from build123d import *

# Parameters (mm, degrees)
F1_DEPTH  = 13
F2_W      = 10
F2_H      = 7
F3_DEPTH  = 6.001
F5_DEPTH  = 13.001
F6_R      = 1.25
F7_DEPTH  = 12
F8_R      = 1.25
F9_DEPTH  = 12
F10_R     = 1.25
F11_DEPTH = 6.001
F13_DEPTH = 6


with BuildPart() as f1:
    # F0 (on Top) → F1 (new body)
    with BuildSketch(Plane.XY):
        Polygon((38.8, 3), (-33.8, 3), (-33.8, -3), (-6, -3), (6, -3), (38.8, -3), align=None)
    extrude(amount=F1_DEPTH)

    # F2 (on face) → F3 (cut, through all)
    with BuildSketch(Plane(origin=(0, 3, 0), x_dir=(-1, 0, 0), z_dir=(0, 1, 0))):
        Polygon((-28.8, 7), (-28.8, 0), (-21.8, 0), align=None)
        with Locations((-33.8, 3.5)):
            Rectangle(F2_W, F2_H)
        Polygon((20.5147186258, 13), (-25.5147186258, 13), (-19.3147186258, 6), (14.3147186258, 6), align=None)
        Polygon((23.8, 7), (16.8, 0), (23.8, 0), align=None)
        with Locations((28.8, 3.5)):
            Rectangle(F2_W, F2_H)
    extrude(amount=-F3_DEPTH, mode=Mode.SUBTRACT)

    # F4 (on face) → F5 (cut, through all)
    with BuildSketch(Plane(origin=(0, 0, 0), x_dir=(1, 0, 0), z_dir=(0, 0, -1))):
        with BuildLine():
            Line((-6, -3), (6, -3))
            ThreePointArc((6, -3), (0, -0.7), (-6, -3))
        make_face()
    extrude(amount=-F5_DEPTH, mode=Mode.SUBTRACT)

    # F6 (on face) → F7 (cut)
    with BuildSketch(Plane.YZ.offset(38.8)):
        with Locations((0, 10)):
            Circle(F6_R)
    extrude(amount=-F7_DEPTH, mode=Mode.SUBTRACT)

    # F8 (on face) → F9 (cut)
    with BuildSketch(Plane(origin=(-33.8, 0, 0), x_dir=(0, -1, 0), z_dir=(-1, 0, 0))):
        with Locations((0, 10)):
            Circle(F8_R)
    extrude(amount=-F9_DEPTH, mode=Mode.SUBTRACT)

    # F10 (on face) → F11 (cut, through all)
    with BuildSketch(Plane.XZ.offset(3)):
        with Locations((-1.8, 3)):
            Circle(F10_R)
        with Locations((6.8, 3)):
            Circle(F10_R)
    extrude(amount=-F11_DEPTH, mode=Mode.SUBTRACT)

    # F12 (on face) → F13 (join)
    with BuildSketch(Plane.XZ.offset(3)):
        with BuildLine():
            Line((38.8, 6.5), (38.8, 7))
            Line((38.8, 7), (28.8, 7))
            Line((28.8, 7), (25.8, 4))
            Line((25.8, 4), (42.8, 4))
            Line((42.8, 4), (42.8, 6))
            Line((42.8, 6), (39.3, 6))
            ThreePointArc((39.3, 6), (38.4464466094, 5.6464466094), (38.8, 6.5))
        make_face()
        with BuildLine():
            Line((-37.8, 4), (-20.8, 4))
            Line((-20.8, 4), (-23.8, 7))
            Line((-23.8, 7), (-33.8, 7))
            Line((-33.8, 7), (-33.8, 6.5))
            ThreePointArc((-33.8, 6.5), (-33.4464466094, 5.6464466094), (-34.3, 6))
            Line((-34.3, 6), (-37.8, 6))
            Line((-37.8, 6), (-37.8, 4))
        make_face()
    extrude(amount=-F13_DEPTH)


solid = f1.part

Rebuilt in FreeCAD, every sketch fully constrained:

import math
import FreeCAD as App
import Part
import Sketcher

V = App.Vector
Q = App.Units.Quantity

doc = App.newDocument("Part")
body = doc.addObject("PartDesign::Body", "Body")

# Sketch on XY plane
sketch1 = doc.addObject("Sketcher::SketchObject", "Sketch")
body.addObject(sketch1)
sketch1.AttachmentSupport = (doc.XY_Plane, [""])
sketch1.MapMode = "FlatFace"
sketch1.addGeometry([
    Part.LineSegment(V(39, 3, 0), V(-34, 3, 0)),
    Part.LineSegment(V(-34, 3, 0), V(-34, -3, 0)),
    Part.LineSegment(V(-34, -3, 0), V(39, -3, 0)),
    Part.LineSegment(V(39, -3, 0), V(39, 3, 0)),
], False)
sketch1.addConstraint([
    Sketcher.Constraint("Coincident", 0, 2, 1, 1),
    Sketcher.Constraint("Coincident", 1, 2, 2, 1),
    Sketcher.Constraint("Coincident", 2, 2, 3, 1),
    Sketcher.Constraint("Coincident", 3, 2, 0, 1),
    Sketcher.Constraint("Horizontal", 0),
    Sketcher.Constraint("Vertical", 1),
    Sketcher.Constraint("Horizontal", 2),
    Sketcher.Constraint("Vertical", 3),
    Sketcher.Constraint("DistanceY", 1, 2, 1, 1, Q("6 mm")),
    Sketcher.Constraint("DistanceX", 0, 2, 0, 1, Q("72.6 mm")),
    Sketcher.Constraint("DistanceY", -1, 1, 0, 2, Q("3 mm")),
    Sketcher.Constraint("DistanceX", 0, 2, -1, 1, Q("33.8 mm")),
])
pad1 = doc.addObject("PartDesign::Pad", "Pad")
body.addObject(pad1)
pad1.Profile = sketch1
pad1.Length = 13

# Sketch on XZ plane
sketch2 = doc.addObject("Sketcher::SketchObject", "Sketch001")
body.addObject(sketch2)
sketch2.AttachmentSupport = (doc.XZ_Plane, [""])
sketch2.MapMode = "FlatFace"
sketch2.AttachmentOffset = App.Placement(V(0, 0, -3), App.Rotation())
sketch2.addGeometry([
    Part.LineSegment(V(22, 0, 0), V(29, 7, 0)),  # 0
    Part.LineSegment(V(29, 7, 0), V(39, 7, 0)),  # 1
    Part.LineSegment(V(39, 7, 0), V(39, 0, 0)),  # 2
    Part.LineSegment(V(39, 0, 0), V(22, 0, 0)),  # 3
    Part.LineSegment(V(-21, 13, 0), V(26, 13, 0)),  # 4
    Part.LineSegment(V(26, 13, 0), V(19, 6, 0)),  # 5
    Part.LineSegment(V(19, 6, 0), V(-14, 6, 0)),  # 6
    Part.LineSegment(V(-14, 6, 0), V(-21, 13, 0)),  # 7
    Part.LineSegment(V(-24, 7, 0), V(-17, 0, 0)),  # 8
    Part.LineSegment(V(-17, 0, 0), V(-34, 0, 0)),  # 9
    Part.LineSegment(V(-34, 0, 0), V(-34, 7, 0)),  # 10
    Part.LineSegment(V(-34, 7, 0), V(-24, 7, 0)),  # 11
], False)
sketch2.addConstraint([
    Sketcher.Constraint("Coincident", 0, 2, 1, 1),
    Sketcher.Constraint("Coincident", 1, 2, 2, 1),
    Sketcher.Constraint("Coincident", 2, 2, 3, 1),
    Sketcher.Constraint("Coincident", 3, 2, 0, 1),
    Sketcher.Constraint("Coincident", 4, 2, 5, 1),
    Sketcher.Constraint("Coincident", 5, 2, 6, 1),
    Sketcher.Constraint("Coincident", 6, 2, 7, 1),
    Sketcher.Constraint("Coincident", 7, 2, 4, 1),
    Sketcher.Constraint("Coincident", 8, 2, 9, 1),
    Sketcher.Constraint("Coincident", 9, 2, 10, 1),
    Sketcher.Constraint("Coincident", 10, 2, 11, 1),
    Sketcher.Constraint("Coincident", 11, 2, 8, 1),
    Sketcher.Constraint("Horizontal", 1),
    Sketcher.Constraint("Vertical", 2),
    Sketcher.Constraint("Horizontal", 3),
    Sketcher.Constraint("Horizontal", 4),
    Sketcher.Constraint("Horizontal", 6),
    Sketcher.Constraint("Horizontal", 9),
    Sketcher.Constraint("Vertical", 10),
    Sketcher.Constraint("Horizontal", 11),
    Sketcher.Constraint("PointOnObject", 2, 2, -1),
    Sketcher.Constraint("PointOnObject", 8, 2, -1),
    Sketcher.Constraint("Perpendicular", 0, 8),
    Sketcher.Constraint("Horizontal", 1, 2, 10, 2),
    Sketcher.Constraint("Equal", 3, 9),
    Sketcher.Constraint("Equal", 1, 11),
    Sketcher.Constraint("Equal", 5, 7),
    Sketcher.Constraint("DistanceX", 1, 1, 1, 2, Q("10 mm")),
    Sketcher.Constraint("DistanceX", 3, 2, 3, 1, Q("17 mm")),
    Sketcher.Constraint("DistanceY", -1, 1, 4, 2, Q("13 mm")),
    Sketcher.Constraint("DistanceY", -1, 1, 5, 2, Q("6 mm")),
    Sketcher.Constraint("DistanceX", -1, 1, 0, 2, Q("28.8 mm")),
    Sketcher.Constraint("DistanceX", 8, 2, -1, 1, Q("16.8 mm")),
    Sketcher.Constraint("DistanceX", 5, 2, 4, 2, Q("6.2 mm")),
    Sketcher.Constraint("DistanceX", 4, 1, 4, 2, Q("46.029437 mm")),
    Sketcher.Constraint("DistanceX", -1, 1, 4, 2, Q("25.514719 mm")),
])
pocket1 = doc.addObject("PartDesign::Pocket", "Pocket")
body.addObject(pocket1)
pocket1.Profile = sketch2
pocket1.Type = "ThroughAll"
pocket1.Reversed = True

# Sketch on XY plane
sketch3 = doc.addObject("Sketcher::SketchObject", "Sketch002")
body.addObject(sketch3)
sketch3.AttachmentSupport = (doc.XY_Plane, [""])
sketch3.MapMode = "FlatFace"
sketch3.addGeometry([
    Part.LineSegment(V(-6, 3, 0), V(6, 3, 0)),
    Part.ArcOfCircle(Part.Circle(V(0, 10, 0), V(0, 0, 1), 9), math.radians(-132), math.radians(-48)),
], False)
sketch3.addConstraint([
    Sketcher.Constraint("Coincident", 0, 1, 1, 1),
    Sketcher.Constraint("Coincident", 1, 2, 0, 2),
    Sketcher.Constraint("Horizontal", 0),
    Sketcher.Constraint("PointOnObject", 1, 3, -2),
    Sketcher.Constraint("DistanceX", 0, 1, 0, 2, Q("12 mm")),
    Sketcher.Constraint("DistanceY", -1, 1, 0, 1, Q("3 mm")),
    Sketcher.Constraint("Radius", 1, Q("8.976087 mm")),
])
pocket2 = doc.addObject("PartDesign::Pocket", "Pocket001")
body.addObject(pocket2)
pocket2.Profile = sketch3
pocket2.Type = "ThroughAll"
pocket2.Reversed = True

# Sketch on YZ plane
sketch4 = doc.addObject("Sketcher::SketchObject", "Sketch003")
body.addObject(sketch4)
sketch4.AttachmentSupport = (doc.YZ_Plane, [""])
sketch4.MapMode = "FlatFace"
sketch4.AttachmentOffset = App.Placement(V(0, 0, 38.8), App.Rotation())
sketch4.addGeometry(Part.Circle(V(0, 10, 0), V(0, 0, 1), 1.2), False)
sketch4.addConstraint([
    Sketcher.Constraint("PointOnObject", 0, 3, -2),
    Sketcher.Constraint("Diameter", 0, Q("2.5 mm")),
    Sketcher.Constraint("DistanceY", -1, 1, 0, 3, Q("10 mm")),
])
pocket3 = doc.addObject("PartDesign::Pocket", "Pocket002")
body.addObject(pocket3)
pocket3.Profile = sketch4
pocket3.Length = 12

# Sketch on YZ plane
sketch5 = doc.addObject("Sketcher::SketchObject", "Sketch004")
body.addObject(sketch5)
sketch5.AttachmentSupport = (doc.YZ_Plane, [""])
sketch5.MapMode = "FlatFace"
sketch5.AttachmentOffset = App.Placement(V(0, 0, -33.8), App.Rotation())
sketch5.addGeometry(Part.Circle(V(0, 10, 0), V(0, 0, 1), 1.2), False)
sketch5.addConstraint([
    Sketcher.Constraint("PointOnObject", 0, 3, -2),
    Sketcher.Constraint("Diameter", 0, Q("2.5 mm")),
    Sketcher.Constraint("DistanceY", -1, 1, 0, 3, Q("10 mm")),
])
pocket4 = doc.addObject("PartDesign::Pocket", "Pocket003")
body.addObject(pocket4)
pocket4.Profile = sketch5
pocket4.Length = 12
pocket4.Reversed = True

# Sketch on XZ plane
sketch6 = doc.addObject("Sketcher::SketchObject", "Sketch005")
body.addObject(sketch6)
sketch6.AttachmentSupport = (doc.XZ_Plane, [""])
sketch6.MapMode = "FlatFace"
sketch6.AttachmentOffset = App.Placement(V(0, 0, 3), App.Rotation())
sketch6.addGeometry([
    Part.Circle(V(-1.8, 3, 0), V(0, 0, 1), 1.2),
    Part.Circle(V(6.8, 3, 0), V(0, 0, 1), 1.2),
], False)
sketch6.addConstraint([
    Sketcher.Constraint("Equal", 0, 1),
    Sketcher.Constraint("Horizontal", 0, 3, 1, 3),
    Sketcher.Constraint("Diameter", 0, Q("2.5 mm")),
    Sketcher.Constraint("DistanceY", -1, 1, 0, 3, Q("3 mm")),
    Sketcher.Constraint("DistanceX", 0, 3, -1, 1, Q("1.8 mm")),
    Sketcher.Constraint("DistanceX", -1, 1, 1, 3, Q("6.8 mm")),
])
pocket5 = doc.addObject("PartDesign::Pocket", "Pocket004")
body.addObject(pocket5)
pocket5.Profile = sketch6
pocket5.Type = "ThroughAll"

# Sketch on XZ plane
sketch7 = doc.addObject("Sketcher::SketchObject", "Sketch006")
body.addObject(sketch7)
sketch7.AttachmentSupport = (doc.XZ_Plane, [""])
sketch7.MapMode = "FlatFace"
sketch7.AttachmentOffset = App.Placement(V(0, 0, 3), App.Rotation())
sketch7.addGeometry([
    Part.LineSegment(V(38.8, 6.5, 0), V(38.8, 7, 0)),  # 0
    Part.LineSegment(V(38.8, 7, 0), V(28.8, 7, 0)),  # 1
    Part.LineSegment(V(28.8, 7, 0), V(25.8, 4, 0)),  # 2
    Part.LineSegment(V(25.8, 4, 0), V(42.8, 4, 0)),  # 3
    Part.LineSegment(V(42.8, 4, 0), V(42.8, 6, 0)),  # 4
    Part.LineSegment(V(42.8, 6, 0), V(39.3, 6, 0)),  # 5
    Part.ArcOfCircle(Part.Circle(V(38.8, 6, 0), V(0, 0, 1), 0.5), math.radians(90), math.radians(360)),  # 6
    Part.LineSegment(V(-37.8, 4, 0), V(-20.8, 4, 0)),  # 7
    Part.LineSegment(V(-20.8, 4, 0), V(-23.8, 7, 0)),  # 8
    Part.LineSegment(V(-23.8, 7, 0), V(-33.8, 7, 0)),  # 9
    Part.LineSegment(V(-33.8, 7, 0), V(-33.8, 6.5, 0)),  # 10
    Part.ArcOfCircle(Part.Circle(V(-33.8, 6, 0), V(0, 0, 1), 0.5), math.radians(180), math.radians(450)),  # 11
    Part.LineSegment(V(-34.3, 6, 0), V(-37.8, 6, 0)),  # 12
    Part.LineSegment(V(-37.8, 6, 0), V(-37.8, 4, 0)),  # 13
], False)
sketch7.addConstraint([
    Sketcher.Constraint("Coincident", 0, 2, 1, 1),
    Sketcher.Constraint("Coincident", 1, 2, 2, 1),
    Sketcher.Constraint("Coincident", 2, 2, 3, 1),
    Sketcher.Constraint("Coincident", 3, 2, 4, 1),
    Sketcher.Constraint("Coincident", 4, 2, 5, 1),
    Sketcher.Constraint("Coincident", 5, 2, 6, 2),
    Sketcher.Constraint("Coincident", 6, 1, 0, 1),
    Sketcher.Constraint("Coincident", 7, 2, 8, 1),
    Sketcher.Constraint("Coincident", 8, 2, 9, 1),
    Sketcher.Constraint("Coincident", 9, 2, 10, 1),
    Sketcher.Constraint("Coincident", 10, 2, 11, 2),
    Sketcher.Constraint("Coincident", 11, 1, 12, 1),
    Sketcher.Constraint("Coincident", 12, 2, 13, 1),
    Sketcher.Constraint("Coincident", 13, 2, 7, 1),
    Sketcher.Constraint("Vertical", 0),
    Sketcher.Constraint("Horizontal", 1),
    Sketcher.Constraint("Horizontal", 3),
    Sketcher.Constraint("Vertical", 4),
    Sketcher.Constraint("Horizontal", 5),
    Sketcher.Constraint("Horizontal", 7),
    Sketcher.Constraint("Horizontal", 9),
    Sketcher.Constraint("Vertical", 10),
    Sketcher.Constraint("Horizontal", 12),
    Sketcher.Constraint("Vertical", 13),
    Sketcher.Constraint("Equal", 6, 11),
    Sketcher.Constraint("Perpendicular", 2, 8),
    Sketcher.Constraint("Horizontal", 6, 3, 11, 3),
    Sketcher.Constraint("Horizontal", 11, 3, 4, 2),
    Sketcher.Constraint("Horizontal", 3, 2, 7, 2),
    Sketcher.Constraint("Horizontal", 1, 2, 8, 2),
    Sketcher.Constraint("Horizontal", 5, 2, 11, 1),
    Sketcher.Constraint("Vertical", 6, 3, 0, 2),
    Sketcher.Constraint("Vertical", 11, 3, 9, 2),
    Sketcher.Constraint("Equal", 3, 7),
    Sketcher.Constraint("Equal", 1, 9),
    Sketcher.Constraint("Equal", 5, 12),
    Sketcher.Constraint("Radius", 6, Q("0.5 mm")),
    Sketcher.Constraint("DistanceX", 1, 2, 1, 1, Q("10 mm")),
    Sketcher.Constraint("DistanceX", 3, 1, 3, 2, Q("17 mm")),
    Sketcher.Constraint("DistanceY", 4, 1, 4, 2, Q("2 mm")),
    Sketcher.Constraint("DistanceX", 5, 2, 5, 1, Q("3.5 mm")),
    Sketcher.Constraint("DistanceY", -1, 1, 6, 3, Q("6 mm")),
    Sketcher.Constraint("DistanceX", -1, 1, 6, 3, Q("38.8 mm")),
    Sketcher.Constraint("DistanceX", 11, 3, -1, 1, Q("33.8 mm")),
])
pad2 = doc.addObject("PartDesign::Pad", "Pad001")
body.addObject(pad2)
pad2.Profile = sketch7
pad2.Length = 6
pad2.Reversed = True

doc.recompute()
